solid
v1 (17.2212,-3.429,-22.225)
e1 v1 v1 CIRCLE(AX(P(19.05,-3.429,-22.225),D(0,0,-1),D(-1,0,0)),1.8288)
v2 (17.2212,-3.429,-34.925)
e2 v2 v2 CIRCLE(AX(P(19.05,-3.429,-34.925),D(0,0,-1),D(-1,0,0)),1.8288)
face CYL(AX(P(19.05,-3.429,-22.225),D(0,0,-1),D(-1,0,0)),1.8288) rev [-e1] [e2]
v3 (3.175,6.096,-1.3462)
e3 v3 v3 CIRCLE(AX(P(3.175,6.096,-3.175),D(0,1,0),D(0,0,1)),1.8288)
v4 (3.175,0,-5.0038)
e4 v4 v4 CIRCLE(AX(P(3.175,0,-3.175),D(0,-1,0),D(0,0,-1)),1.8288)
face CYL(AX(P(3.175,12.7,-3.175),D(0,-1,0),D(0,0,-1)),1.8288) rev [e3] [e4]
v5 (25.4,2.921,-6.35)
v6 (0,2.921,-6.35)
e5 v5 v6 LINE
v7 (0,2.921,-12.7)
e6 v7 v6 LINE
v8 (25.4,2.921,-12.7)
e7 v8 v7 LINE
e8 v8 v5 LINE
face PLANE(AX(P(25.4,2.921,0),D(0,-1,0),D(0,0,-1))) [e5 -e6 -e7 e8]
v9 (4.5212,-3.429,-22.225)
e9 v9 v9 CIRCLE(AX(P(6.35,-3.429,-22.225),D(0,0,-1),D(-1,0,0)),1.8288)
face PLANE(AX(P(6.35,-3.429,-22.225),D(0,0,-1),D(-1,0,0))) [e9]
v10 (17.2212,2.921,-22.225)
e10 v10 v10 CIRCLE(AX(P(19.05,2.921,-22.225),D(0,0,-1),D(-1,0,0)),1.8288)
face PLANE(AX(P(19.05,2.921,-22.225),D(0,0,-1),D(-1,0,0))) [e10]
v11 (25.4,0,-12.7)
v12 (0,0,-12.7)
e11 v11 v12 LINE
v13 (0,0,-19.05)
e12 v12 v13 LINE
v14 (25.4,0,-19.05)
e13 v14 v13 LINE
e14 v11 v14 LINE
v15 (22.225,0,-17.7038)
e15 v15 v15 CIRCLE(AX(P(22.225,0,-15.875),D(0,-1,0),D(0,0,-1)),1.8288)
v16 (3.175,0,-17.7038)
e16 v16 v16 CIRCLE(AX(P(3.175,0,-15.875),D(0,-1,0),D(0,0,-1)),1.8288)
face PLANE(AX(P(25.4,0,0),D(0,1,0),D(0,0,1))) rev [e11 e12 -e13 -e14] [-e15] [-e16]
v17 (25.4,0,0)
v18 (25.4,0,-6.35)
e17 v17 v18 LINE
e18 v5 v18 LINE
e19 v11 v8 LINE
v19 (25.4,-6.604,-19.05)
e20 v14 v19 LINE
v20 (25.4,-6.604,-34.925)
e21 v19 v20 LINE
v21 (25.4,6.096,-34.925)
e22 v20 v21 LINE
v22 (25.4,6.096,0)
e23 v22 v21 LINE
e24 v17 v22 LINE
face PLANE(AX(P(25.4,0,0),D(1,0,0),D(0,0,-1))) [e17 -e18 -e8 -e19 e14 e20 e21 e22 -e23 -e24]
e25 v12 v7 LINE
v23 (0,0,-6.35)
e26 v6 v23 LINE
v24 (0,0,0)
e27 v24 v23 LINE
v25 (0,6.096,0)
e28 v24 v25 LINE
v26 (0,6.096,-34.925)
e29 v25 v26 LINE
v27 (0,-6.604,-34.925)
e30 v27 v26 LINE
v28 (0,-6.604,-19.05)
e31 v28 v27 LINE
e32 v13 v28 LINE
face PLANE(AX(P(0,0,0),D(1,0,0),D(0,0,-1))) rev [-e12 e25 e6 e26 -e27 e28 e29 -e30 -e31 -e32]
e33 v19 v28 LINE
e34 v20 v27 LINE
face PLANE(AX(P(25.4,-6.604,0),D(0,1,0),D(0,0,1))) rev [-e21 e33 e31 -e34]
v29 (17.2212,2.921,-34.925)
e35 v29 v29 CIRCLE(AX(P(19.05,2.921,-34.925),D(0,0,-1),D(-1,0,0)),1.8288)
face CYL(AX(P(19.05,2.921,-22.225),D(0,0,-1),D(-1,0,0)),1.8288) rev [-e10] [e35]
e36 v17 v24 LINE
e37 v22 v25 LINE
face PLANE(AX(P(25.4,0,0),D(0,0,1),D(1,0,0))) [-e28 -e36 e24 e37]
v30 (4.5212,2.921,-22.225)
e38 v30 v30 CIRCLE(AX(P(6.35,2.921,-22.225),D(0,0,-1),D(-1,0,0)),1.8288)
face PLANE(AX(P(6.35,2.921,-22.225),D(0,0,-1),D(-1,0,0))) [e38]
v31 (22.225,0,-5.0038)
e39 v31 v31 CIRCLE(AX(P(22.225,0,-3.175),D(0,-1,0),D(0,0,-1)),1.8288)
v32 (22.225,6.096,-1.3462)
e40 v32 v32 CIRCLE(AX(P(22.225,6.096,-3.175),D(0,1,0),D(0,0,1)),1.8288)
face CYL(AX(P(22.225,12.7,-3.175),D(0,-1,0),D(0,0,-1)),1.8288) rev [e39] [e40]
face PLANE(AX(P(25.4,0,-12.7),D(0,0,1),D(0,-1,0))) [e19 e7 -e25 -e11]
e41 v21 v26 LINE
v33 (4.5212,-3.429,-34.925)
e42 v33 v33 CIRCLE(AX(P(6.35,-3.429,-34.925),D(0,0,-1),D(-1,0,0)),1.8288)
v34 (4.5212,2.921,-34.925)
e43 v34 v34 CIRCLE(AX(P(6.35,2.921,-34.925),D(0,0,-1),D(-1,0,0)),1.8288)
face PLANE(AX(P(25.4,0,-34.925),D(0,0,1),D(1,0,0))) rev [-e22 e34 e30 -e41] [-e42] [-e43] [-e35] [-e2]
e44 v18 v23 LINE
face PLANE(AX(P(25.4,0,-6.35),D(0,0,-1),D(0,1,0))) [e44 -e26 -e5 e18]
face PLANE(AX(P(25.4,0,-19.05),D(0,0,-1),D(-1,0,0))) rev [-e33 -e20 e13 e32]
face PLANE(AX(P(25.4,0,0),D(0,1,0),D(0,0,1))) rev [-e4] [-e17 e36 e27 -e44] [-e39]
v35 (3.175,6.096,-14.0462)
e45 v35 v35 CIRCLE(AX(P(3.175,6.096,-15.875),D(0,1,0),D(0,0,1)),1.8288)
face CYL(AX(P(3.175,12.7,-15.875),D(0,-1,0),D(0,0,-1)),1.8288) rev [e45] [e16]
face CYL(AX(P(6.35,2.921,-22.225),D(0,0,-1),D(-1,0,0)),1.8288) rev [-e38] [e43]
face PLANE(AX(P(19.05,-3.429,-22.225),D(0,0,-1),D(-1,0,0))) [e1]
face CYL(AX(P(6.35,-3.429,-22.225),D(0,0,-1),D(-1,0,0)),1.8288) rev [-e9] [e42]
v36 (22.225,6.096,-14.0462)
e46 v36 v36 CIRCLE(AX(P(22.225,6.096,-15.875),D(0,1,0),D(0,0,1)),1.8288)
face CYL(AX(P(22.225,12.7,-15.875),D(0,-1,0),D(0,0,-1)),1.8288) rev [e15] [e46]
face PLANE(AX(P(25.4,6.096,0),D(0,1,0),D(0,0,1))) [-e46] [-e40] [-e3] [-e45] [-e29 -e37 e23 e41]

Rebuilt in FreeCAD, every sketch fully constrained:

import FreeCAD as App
import Part
import Sketcher

V = App.Vector
Q = App.Units.Quantity

doc = App.newDocument("Part")
body = doc.addObject("PartDesign::Body", "Body")

sketch1 = doc.addObject("Sketcher::SketchObject", "Sketch")
body.addObject(sketch1)
sketch1.AttachmentSupport = (doc.YZ_Plane, [""])
sketch1.MapMode = "FlatFace"
sketch1.addGeometry([
    Part.LineSegment(V(6.096, 0, 0), V(0, 0, 0)),
    Part.LineSegment(V(0, 0, 0), V(0, -6.35, 0)),
    Part.LineSegment(V(0, -6.35, 0), V(2.921, -6.35, 0)),
    Part.LineSegment(V(2.921, -6.35, 0), V(2.921, -12.7, 0)),
    Part.LineSegment(V(2.921, -12.7, 0), V(0, -12.7, 0)),
    Part.LineSegment(V(0, -12.7, 0), V(0, -19.05, 0)),
    Part.LineSegment(V(0, -19.05, 0), V(-6.604, -19.05, 0)),
    Part.LineSegment(V(-6.604, -19.05, 0), V(-6.604, -34.925, 0)),
    Part.LineSegment(V(-6.604, -34.925, 0), V(6.096, -34.925, 0)),
    Part.LineSegment(V(6.096, -34.925, 0), V(6.096, 0, 0)),
], False)
sketch1.addConstraint([
    Sketcher.Constraint("Coincident", 0, 2, 1, 1),
    Sketcher.Constraint("Coincident", 1, 2, 2, 1),
    Sketcher.Constraint("Coincident", 2, 2, 3, 1),
    Sketcher.Constraint("Coincident", 3, 2, 4, 1),
    Sketcher.Constraint("Coincident", 4, 2, 5, 1),
    Sketcher.Constraint("Coincident", 5, 2, 6, 1),
    Sketcher.Constraint("Coincident", 6, 2, 7, 1),
    Sketcher.Constraint("Coincident", 7, 2, 8, 1),
    Sketcher.Constraint("Coincident", 8, 2, 9, 1),
    Sketcher.Constraint("Coincident", 9, 2, 0, 1),
    Sketcher.Constraint("Horizontal", 0),
    Sketcher.Constraint("Vertical", 1),
    Sketcher.Constraint("Horizontal", 2),
    Sketcher.Constraint("Vertical", 3),
    Sketcher.Constraint("Horizontal", 4),
    Sketcher.Constraint("Vertical", 5),
    Sketcher.Constraint("Horizontal", 6),
    Sketcher.Constraint("Vertical", 7),
    Sketcher.Constraint("Horizontal", 8),
    Sketcher.Constraint("Vertical", 9),
    Sketcher.Constraint("Coincident", 0, 2, -1, 1),
    Sketcher.Constraint("PointOnObject", 4, 2, -2),
    Sketcher.Constraint("Equal", 1, 3),
    Sketcher.Constraint("Equal", 3, 5),
    Sketcher.Constraint("DistanceX", 8, 1, 8, 2, Q("0.5 in")),
    Sketcher.Constraint("DistanceX", 0, 2, 0, 1, Q("0.24 in")),
    Sketcher.Constraint("DistanceY", 1, 2, 1, 1, Q("0.25 in")),
    Sketcher.Constraint("DistanceX", 2, 1, 2, 2, Q("0.115 in")),
    Sketcher.Constraint("DistanceY", 7, 2, 7, 1, Q("0.625 in")),
])
pad1 = doc.addObject("PartDesign::Pad", "Pad")
body.addObject(pad1)
pad1.Profile = sketch1
pad1.Length = Q("1 in")

sketch2 = doc.addObject("Sketcher::SketchObject", "Sketch001")
body.addObject(sketch2)
sketch2.AttachmentSupport = (doc.XY_Plane, [""])
sketch2.MapMode = "FlatFace"
sketch2.AttachmentOffset = App.Placement(V(0, 0, -1.375 * 25.4), App.Rotation())
sketch2.addGeometry([
    Part.Circle(V(19.05, 2.921, 0), V(0, 0, 1), 1.8288),
    Part.Circle(V(6.35, 2.921, 0), V(0, 0, 1), 1.8288),
    Part.Circle(V(19.05, -3.429, 0), V(0, 0, 1), 1.8288),
    Part.Circle(V(6.35, -3.429, 0), V(0, 0, 1), 1.8288),
], False)
sketch2.addConstraint([
    Sketcher.Constraint("Equal", 0, 1),
    Sketcher.Constraint("Equal", 1, 2),
    Sketcher.Constraint("Equal", 2, 3),
    Sketcher.Constraint("Horizontal", 0, 3, 1, 3),
    Sketcher.Constraint("Horizontal", 2, 3, 3, 3),
    Sketcher.Constraint("Vertical", 0, 3, 2, 3),
    Sketcher.Constraint("Vertical", 1, 3, 3, 3),
    Sketcher.Constraint("Diameter", 0, Q("0.144 in")),
    Sketcher.Constraint("DistanceX", 1, 3, 0, 3, Q("0.5 in")),
    Sketcher.Constraint("DistanceX", -1, 1, 0, 3, Q("0.75 in")),
    Sketcher.Constraint("DistanceY", 2, 3, 0, 3, Q("0.25 in")),
    Sketcher.Constraint("DistanceY", -1, 1, 0, 3, Q("0.115 in")),
])
pocket1 = doc.addObject("PartDesign::Pocket", "Pocket")
body.addObject(pocket1)
pocket1.Profile = sketch2
pocket1.Length = Q("0.5 in")
pocket1.Reversed = True

sketch3 = doc.addObject("Sketcher::SketchObject", "Sketch002")
body.addObject(sketch3)
sketch3.AttachmentSupport = (doc.XZ_Plane, [""])
sketch3.MapMode = "FlatFace"
sketch3.addGeometry([
    Part.Circle(V(3.175, -3.175, 0), V(0, 0, 1), 1.8288),
    Part.Circle(V(3.175, -15.875, 0), V(0, 0, 1), 1.8288),
    Part.Circle(V(22.225, -3.175, 0), V(0, 0, 1), 1.8288),
    Part.Circle(V(22.225, -15.875, 0), V(0, 0, 1), 1.8288),
], False)
sketch3.addConstraint([
    Sketcher.Constraint("Equal", 0, 1),
    Sketcher.Constraint("Equal", 1, 2),
    Sketcher.Constraint("Equal", 2, 3),
    Sketcher.Constraint("Horizontal", 0, 3, 2, 3),
    Sketcher.Constraint("Horizontal", 1, 3, 3, 3),
    Sketcher.Constraint("Vertical", 0, 3, 1, 3),
    Sketcher.Constraint("Vertical", 2, 3, 3, 3),
    Sketcher.Constraint("Diameter", 0, Q("0.144 in")),
    Sketcher.Constraint("DistanceY", 1, 3, 0, 3, Q("0.5 in")),
    Sketcher.Constraint("DistanceX", 0, 3, 2, 3, Q("0.75 in")),
    Sketcher.Constraint("DistanceX", -1, 1, 0, 3, Q("0.125 in")),
    Sketcher.Constraint("DistanceY", 0, 3, -1, 1, Q("0.125 in")),
])
pocket2 = doc.addObject("PartDesign::Pocket", "Pocket001")
body.addObject(pocket2)
pocket2.Profile = sketch3
pocket2.Length = Q("0.5 in")

doc.recompute()
